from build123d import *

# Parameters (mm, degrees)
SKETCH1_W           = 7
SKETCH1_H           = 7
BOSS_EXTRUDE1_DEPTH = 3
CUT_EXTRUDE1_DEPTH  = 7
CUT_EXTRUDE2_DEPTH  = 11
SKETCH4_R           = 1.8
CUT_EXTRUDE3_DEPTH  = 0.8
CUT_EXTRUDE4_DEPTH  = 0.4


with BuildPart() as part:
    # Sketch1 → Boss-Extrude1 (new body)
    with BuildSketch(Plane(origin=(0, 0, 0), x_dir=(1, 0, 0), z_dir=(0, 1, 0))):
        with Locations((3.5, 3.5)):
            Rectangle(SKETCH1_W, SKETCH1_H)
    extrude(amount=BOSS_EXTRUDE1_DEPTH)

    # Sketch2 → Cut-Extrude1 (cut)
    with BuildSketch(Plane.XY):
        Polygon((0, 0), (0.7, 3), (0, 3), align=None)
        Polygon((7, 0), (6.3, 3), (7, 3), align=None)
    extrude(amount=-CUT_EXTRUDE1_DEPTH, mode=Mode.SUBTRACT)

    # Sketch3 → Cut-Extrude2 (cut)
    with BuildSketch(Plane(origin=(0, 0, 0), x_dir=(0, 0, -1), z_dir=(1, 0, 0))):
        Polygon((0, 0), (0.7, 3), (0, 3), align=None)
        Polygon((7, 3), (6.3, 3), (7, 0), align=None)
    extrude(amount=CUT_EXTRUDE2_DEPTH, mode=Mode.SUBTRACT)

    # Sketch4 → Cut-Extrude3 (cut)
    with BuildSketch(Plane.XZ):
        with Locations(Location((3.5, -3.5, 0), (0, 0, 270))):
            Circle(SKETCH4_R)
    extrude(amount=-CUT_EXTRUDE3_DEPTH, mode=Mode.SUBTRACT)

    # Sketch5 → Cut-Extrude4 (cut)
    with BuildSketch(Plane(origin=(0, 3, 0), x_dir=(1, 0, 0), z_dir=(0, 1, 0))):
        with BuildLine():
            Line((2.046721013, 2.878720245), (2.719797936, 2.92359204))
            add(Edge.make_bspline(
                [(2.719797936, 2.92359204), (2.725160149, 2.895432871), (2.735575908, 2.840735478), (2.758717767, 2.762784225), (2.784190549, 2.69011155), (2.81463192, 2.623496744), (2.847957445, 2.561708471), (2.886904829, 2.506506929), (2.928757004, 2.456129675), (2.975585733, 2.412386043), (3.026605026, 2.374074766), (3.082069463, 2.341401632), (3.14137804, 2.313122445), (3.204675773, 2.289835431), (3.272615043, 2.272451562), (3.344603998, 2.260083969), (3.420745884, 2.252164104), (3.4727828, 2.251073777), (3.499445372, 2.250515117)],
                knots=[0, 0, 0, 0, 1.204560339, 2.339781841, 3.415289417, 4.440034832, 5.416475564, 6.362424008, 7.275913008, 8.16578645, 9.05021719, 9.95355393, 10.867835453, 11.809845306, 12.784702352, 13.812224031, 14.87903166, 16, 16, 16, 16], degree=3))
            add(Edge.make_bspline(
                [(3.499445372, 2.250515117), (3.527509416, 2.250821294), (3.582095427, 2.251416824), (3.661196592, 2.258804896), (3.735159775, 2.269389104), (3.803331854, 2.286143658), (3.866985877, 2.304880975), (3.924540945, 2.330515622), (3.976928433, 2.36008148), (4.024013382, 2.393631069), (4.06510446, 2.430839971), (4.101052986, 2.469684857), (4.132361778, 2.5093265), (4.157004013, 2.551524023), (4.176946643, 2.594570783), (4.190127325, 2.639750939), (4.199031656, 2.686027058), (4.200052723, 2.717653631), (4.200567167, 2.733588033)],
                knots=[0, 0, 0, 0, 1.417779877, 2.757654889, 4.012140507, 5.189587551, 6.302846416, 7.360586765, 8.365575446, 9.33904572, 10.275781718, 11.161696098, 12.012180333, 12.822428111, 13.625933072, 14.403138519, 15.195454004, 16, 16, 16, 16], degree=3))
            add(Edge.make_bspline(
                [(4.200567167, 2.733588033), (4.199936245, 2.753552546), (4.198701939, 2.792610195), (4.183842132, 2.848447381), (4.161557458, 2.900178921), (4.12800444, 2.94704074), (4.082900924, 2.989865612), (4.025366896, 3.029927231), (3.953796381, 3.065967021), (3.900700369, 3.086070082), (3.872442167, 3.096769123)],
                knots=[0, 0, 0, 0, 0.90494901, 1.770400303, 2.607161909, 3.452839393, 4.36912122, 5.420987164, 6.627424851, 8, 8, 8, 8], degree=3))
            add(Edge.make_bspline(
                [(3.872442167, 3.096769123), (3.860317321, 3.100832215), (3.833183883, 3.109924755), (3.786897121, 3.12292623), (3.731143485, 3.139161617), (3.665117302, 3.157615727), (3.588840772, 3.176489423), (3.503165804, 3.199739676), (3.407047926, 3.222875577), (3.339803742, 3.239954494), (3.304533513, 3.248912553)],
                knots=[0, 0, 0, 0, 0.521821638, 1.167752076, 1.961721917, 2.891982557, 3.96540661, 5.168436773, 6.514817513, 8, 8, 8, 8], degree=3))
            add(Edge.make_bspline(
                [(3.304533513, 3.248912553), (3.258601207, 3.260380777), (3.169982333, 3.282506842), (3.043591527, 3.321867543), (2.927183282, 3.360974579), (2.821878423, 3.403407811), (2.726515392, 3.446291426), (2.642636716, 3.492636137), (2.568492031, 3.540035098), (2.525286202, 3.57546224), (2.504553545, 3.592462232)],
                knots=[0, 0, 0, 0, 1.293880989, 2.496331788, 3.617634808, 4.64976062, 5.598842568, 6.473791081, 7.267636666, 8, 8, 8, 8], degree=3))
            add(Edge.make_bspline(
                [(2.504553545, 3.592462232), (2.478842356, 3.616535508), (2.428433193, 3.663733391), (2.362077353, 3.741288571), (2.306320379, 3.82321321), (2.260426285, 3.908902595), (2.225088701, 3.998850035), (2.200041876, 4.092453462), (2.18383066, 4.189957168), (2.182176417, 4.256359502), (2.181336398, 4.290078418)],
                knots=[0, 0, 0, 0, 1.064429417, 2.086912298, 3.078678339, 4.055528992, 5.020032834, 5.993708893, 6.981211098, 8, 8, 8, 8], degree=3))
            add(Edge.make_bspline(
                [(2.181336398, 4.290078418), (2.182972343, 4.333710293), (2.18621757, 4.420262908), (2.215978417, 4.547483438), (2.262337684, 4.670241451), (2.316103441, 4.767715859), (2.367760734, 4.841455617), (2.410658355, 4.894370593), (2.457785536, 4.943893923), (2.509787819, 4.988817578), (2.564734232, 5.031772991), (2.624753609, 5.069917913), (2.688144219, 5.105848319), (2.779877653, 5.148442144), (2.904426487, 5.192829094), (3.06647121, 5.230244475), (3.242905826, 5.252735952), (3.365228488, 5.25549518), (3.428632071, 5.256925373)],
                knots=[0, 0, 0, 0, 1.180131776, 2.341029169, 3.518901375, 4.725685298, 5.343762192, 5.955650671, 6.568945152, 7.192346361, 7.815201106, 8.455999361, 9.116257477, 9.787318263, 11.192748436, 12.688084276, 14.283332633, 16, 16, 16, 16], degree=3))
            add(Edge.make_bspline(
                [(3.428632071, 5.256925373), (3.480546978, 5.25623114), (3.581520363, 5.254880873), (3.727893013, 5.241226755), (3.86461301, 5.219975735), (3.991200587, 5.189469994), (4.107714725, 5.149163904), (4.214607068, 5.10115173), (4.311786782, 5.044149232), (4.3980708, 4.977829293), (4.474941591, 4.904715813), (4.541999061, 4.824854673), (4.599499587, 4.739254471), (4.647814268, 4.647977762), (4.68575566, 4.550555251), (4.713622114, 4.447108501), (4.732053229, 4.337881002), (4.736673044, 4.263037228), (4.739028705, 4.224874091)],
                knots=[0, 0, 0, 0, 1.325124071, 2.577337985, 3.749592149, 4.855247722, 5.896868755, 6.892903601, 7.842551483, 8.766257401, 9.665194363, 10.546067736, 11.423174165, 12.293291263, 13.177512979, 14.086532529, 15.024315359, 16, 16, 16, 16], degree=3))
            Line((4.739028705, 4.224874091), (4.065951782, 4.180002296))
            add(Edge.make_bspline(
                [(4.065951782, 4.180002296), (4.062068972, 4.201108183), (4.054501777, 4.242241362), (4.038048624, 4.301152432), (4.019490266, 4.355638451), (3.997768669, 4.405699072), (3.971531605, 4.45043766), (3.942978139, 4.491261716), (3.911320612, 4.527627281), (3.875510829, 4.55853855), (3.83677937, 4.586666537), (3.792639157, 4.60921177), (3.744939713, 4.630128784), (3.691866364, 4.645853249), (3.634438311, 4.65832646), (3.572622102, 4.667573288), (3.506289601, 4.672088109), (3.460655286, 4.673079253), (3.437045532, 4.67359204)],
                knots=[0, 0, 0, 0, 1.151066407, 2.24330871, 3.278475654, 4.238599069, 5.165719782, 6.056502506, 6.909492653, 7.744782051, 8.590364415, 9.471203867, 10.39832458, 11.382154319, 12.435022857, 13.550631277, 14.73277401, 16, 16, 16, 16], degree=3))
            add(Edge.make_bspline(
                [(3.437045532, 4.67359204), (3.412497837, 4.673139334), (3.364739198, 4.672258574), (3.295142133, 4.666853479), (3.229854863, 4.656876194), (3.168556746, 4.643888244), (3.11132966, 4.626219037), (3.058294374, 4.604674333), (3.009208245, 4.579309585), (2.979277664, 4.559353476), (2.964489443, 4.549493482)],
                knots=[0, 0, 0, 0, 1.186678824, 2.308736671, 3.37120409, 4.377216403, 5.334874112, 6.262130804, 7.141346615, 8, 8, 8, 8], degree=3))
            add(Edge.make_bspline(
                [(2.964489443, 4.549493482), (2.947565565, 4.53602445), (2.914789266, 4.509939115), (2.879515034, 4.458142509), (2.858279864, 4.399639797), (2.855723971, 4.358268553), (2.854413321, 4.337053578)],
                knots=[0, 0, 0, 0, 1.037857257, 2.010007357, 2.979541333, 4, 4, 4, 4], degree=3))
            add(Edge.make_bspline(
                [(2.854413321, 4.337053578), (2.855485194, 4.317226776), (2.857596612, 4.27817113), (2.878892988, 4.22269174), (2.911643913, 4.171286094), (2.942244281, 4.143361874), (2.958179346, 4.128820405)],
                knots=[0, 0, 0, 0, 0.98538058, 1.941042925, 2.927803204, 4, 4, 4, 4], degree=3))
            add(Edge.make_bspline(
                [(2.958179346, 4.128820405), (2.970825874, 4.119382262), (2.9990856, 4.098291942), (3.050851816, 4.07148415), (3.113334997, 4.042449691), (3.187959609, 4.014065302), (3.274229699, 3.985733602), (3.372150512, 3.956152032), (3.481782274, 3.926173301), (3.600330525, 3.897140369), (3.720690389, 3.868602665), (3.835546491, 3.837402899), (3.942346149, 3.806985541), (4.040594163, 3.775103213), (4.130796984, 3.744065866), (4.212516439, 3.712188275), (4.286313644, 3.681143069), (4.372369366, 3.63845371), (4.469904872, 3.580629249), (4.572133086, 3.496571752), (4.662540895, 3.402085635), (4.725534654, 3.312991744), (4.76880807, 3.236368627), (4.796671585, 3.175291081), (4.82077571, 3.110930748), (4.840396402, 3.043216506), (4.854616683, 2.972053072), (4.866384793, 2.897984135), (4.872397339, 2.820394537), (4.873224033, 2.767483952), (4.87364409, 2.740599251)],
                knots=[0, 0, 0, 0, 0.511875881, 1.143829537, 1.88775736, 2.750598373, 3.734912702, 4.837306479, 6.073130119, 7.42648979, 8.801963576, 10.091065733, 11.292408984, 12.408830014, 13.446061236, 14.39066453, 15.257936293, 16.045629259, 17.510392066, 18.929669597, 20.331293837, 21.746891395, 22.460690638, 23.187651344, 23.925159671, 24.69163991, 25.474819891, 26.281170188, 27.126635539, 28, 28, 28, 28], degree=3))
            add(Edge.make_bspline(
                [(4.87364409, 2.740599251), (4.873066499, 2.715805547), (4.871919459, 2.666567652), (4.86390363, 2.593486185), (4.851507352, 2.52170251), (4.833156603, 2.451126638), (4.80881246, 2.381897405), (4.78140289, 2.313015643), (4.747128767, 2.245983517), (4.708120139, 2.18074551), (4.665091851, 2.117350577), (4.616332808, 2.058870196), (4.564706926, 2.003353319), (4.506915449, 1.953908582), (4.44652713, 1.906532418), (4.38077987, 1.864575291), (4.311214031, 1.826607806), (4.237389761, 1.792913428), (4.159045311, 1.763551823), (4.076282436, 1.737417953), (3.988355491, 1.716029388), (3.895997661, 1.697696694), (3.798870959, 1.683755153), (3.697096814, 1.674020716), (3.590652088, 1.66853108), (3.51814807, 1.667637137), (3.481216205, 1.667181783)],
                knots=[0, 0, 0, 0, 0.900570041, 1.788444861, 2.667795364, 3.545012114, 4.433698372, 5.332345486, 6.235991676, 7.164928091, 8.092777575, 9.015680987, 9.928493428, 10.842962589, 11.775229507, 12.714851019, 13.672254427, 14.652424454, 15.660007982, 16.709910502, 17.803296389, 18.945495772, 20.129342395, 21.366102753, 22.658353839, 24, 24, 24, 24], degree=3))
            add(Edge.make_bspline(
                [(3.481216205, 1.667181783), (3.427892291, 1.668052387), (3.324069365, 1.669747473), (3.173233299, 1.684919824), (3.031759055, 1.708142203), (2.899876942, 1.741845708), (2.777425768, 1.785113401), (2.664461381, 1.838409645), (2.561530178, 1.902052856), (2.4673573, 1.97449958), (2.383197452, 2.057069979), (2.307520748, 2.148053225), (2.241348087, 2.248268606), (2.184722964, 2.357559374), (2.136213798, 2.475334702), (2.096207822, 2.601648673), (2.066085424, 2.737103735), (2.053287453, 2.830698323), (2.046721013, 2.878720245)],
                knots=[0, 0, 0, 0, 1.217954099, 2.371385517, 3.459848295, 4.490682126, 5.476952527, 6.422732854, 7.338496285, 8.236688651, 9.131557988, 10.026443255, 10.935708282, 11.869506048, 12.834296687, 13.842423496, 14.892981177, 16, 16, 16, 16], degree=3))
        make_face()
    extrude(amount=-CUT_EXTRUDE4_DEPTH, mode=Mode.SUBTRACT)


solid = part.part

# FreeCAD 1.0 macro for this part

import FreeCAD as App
import Part
import Sketcher

V = App.Vector
Q = App.Units.Quantity


def add_polygon(sketch, points):
    """Adds a closed chain of lines whose ends are joined by coincident constraints."""
    first, n = sketch.GeometryCount, len(points)
    for a, b in zip(points, points[1:] + points[:1]):
        sketch.addGeometry(Part.LineSegment(App.Vector(*a, 0), App.Vector(*b, 0)), False)
    for i in range(n):
        sketch.addConstraint(Sketcher.Constraint("Coincident", first + i, 2, first + (i + 1) % n, 1))

doc = App.newDocument("Part")
body = doc.addObject("PartDesign::Body", "Body")

sketch1 = doc.addObject("Sketcher::SketchObject", "Sketch")
body.addObject(sketch1)
sketch1.AttachmentSupport = (doc.XZ_Plane, [""])
sketch1.MapMode = "FlatFace"
add_polygon(sketch1, [(0, -7), (0, 0), (7, 0), (7, -7)])
sketch1.addConstraint(Sketcher.Constraint("Vertical", 0))
sketch1.addConstraint(Sketcher.Constraint("Horizontal", 1))
sketch1.addConstraint(Sketcher.Constraint("Vertical", 2))
sketch1.addConstraint(Sketcher.Constraint("Horizontal", 3))
sketch1.addConstraint(Sketcher.Constraint("Coincident", 0, 2, -1, 1))
sketch1.addConstraint(Sketcher.Constraint("Equal", 3, 0))
sketch1.addConstraint(Sketcher.Constraint("DistanceX", 1, 1, 1, 2, Q("7 mm")))
pad1 = doc.addObject("PartDesign::Pad", "Pad")
body.addObject(pad1)
pad1.Profile = sketch1
pad1.Length = 3
pad1.Reversed = True

sketch2 = doc.addObject("Sketcher::SketchObject", "Sketch001")
body.addObject(sketch2)
sketch2.AttachmentSupport = (doc.XY_Plane, [""])
sketch2.MapMode = "FlatFace"
add_polygon(sketch2, [(0, 0), (0.7, 3), (0, 3)])
add_polygon(sketch2, [(6.3, 3), (7, 0), (7, 3)])
sketch2.addConstraint(Sketcher.Constraint("Horizontal", 1))
sketch2.addConstraint(Sketcher.Constraint("Vertical", 2))
sketch2.addConstraint(Sketcher.Constraint("Vertical", 4))
sketch2.addConstraint(Sketcher.Constraint("Horizontal", 5))
sketch2.addConstraint(Sketcher.Constraint("Coincident", 2, 2, -1, 1))
sketch2.addConstraint(Sketcher.Constraint("PointOnObject", 3, 2, -1))
sketch2.addConstraint(Sketcher.Constraint("Horizontal", 1, 2, 4, 2))
sketch2.addConstraint(Sketcher.Constraint("Equal", 1, 5))
sketch2.addConstraint(Sketcher.Constraint("DistanceY", 2, 2, 2, 1, Q("3 mm")))
sketch2.addConstraint(Sketcher.Constraint("DistanceX", 1, 2, 1, 1, Q("0.7 mm")))
sketch2.addConstraint(Sketcher.Constraint("DistanceX", -1, 1, 3, 2, Q("7 mm")))
pocket1 = doc.addObject("PartDesign::Pocket", "Pocket")
body.addObject(pocket1)
pocket1.Profile = sketch2
pocket1.Length = 7

sketch3 = doc.addObject("Sketcher::SketchObject", "Sketch002")
body.addObject(sketch3)
sketch3.AttachmentSupport = (doc.YZ_Plane, [""])
sketch3.MapMode = "FlatFace"
add_polygon(sketch3, [(0, 0), (3, -0.7), (3, 0)])
add_polygon(sketch3, [(3, -7), (3, -6.3), (0, -7)])
sketch3.addConstraint(Sketcher.Constraint("Vertical", 1))
sketch3.addConstraint(Sketcher.Constraint("Horizontal", 2))
sketch3.addConstraint(Sketcher.Constraint("Vertical", 3))
sketch3.addConstraint(Sketcher.Constraint("Horizontal", 5))
sketch3.addConstraint(Sketcher.Constraint("Coincident", 2, 2, -1, 1))
sketch3.addConstraint(Sketcher.Constraint("PointOnObject", 4, 2, -2))
sketch3.addConstraint(Sketcher.Constraint("Vertical", 1, 2, 3, 2))
sketch3.addConstraint(Sketcher.Constraint("Equal", 1, 3))
sketch3.addConstraint(Sketcher.Constraint("DistanceX", 2, 2, 2, 1, Q("3 mm")))
sketch3.addConstraint(Sketcher.Constraint("DistanceY", 1, 1, 1, 2, Q("0.7 mm")))
sketch3.addConstraint(Sketcher.Constraint("DistanceY", 4, 2, -1, 1, Q("7 mm")))
pocket2 = doc.addObject("PartDesign::Pocket", "Pocket001")
body.addObject(pocket2)
pocket2.Profile = sketch3
pocket2.Length = 11
pocket2.Reversed = True

sketch4 = doc.addObject("Sketcher::SketchObject", "Sketch003")
body.addObject(sketch4)
sketch4.AttachmentSupport = (doc.XZ_Plane, [""])
sketch4.MapMode = "FlatFace"
sketch4.addGeometry(Part.Circle(V(3.5, -3.5, 0), V(0, 0, 1), 1.8), False)
sketch4.addConstraint(Sketcher.Constraint("Diameter", 0, Q("3.6 mm")))
sketch4.addConstraint(Sketcher.Constraint("DistanceX", -1, 1, 0, 3, Q("3.5 mm")))
sketch4.addConstraint(Sketcher.Constraint("DistanceY", 0, 3, -1, 1, Q("3.5 mm")))
pocket3 = doc.addObject("PartDesign::Pocket", "Pocket002")
body.addObject(pocket3)
pocket3.Profile = sketch4
pocket3.Length = 0.8

sketch5 = doc.addObject("Sketcher::SketchObject", "Sketch004")
body.addObject(sketch5)
sketch5.AttachmentSupport = (doc.XZ_Plane, [""])
sketch5.MapMode = "FlatFace"
sketch5.AttachmentOffset = App.Placement(V(0, 0, -3), App.Rotation())
sketch5.addGeometry(Part.LineSegment(V(2.719798, -2.923592, 0), V(2.046721, -2.87872, 0)), False)
sketch5.addGeometry(Part.BSplineCurve([V(3.481216, -1.667182, 0), V(3.427892, -1.668052, 0), V(3.324069, -1.669747, 0), V(3.173233, -1.68492, 0), V(3.031759, -1.708142, 0), V(2.899877, -1.741846, 0), V(2.777426, -1.785113, 0), V(2.664461, -1.83841, 0), V(2.56153, -1.902053, 0), V(2.467357, -1.9745, 0), V(2.383197, -2.05707, 0), V(2.307521, -2.148053, 0), V(2.241348, -2.248269, 0), V(2.184723, -2.357559, 0), V(2.136214, -2.475335, 0), V(2.096208, -2.601649, 0), V(2.066085, -2.737104, 0), V(2.053287, -2.830698, 0), V(2.046721, -2.87872, 0)], [4, 1, 1, 1, 1, 1, 1, 1, 1, 1, 1, 1, 1, 1, 1, 1, 4], [0, 1.217954099, 2.371385517, 3.459848295, 4.490682126, 5.476952527, 6.422732854, 7.338496285, 8.236688651, 9.131557988, 10.026443255, 10.935708282, 11.869506048, 12.834296687, 13.842423496, 14.892981177, 16], False, 3, [1, 1, 1, 1, 1, 1, 1, 1, 1, 1, 1, 1, 1, 1, 1, 1, 1, 1, 1], False), False)
sketch5.addGeometry(Part.BSplineCurve([V(4.873644, -2.740599, 0), V(4.873066, -2.715806, 0), V(4.871919, -2.666568, 0), V(4.863904, -2.593486, 0), V(4.851507, -2.521703, 0), V(4.833157, -2.451127, 0), V(4.808812, -2.381897, 0), V(4.781403, -2.313016, 0), V(4.747129, -2.245984, 0), V(4.70812, -2.180746, 0), V(4.665092, -2.117351, 0), V(4.616333, -2.05887, 0), V(4.564707, -2.003353, 0), V(4.506915, -1.953909, 0), V(4.446527, -1.906532, 0), V(4.38078, -1.864575, 0), V(4.311214, -1.826608, 0), V(4.23739, -1.792913, 0), V(4.159045, -1.763552, 0), V(4.076282, -1.737418, 0), V(3.988355, -1.716029, 0), V(3.895998, -1.697697, 0), V(3.798871, -1.683755, 0), V(3.697097, -1.674021, 0), V(3.590652, -1.668531, 0), V(3.518148, -1.667637, 0), V(3.481216, -1.667182, 0)], [4, 1, 1, 1, 1, 1, 1, 1, 1, 1, 1, 1, 1, 1, 1, 1, 1, 1, 1, 1, 1, 1, 1, 1, 4], [0, 0.900570041, 1.788444861, 2.667795364, 3.545012114, 4.433698372, 5.332345486, 6.235991676, 7.164928091, 8.092777575, 9.015680987, 9.928493428, 10.842962589, 11.775229507, 12.714851019, 13.672254427, 14.652424454, 15.660007982, 16.709910502, 17.803296389, 18.945495772, 20.129342395, 21.366102753, 22.658353839, 24], False, 3, [1, 1, 1, 1, 1, 1, 1, 1, 1, 1, 1, 1, 1, 1, 1, 1, 1, 1, 1, 1, 1, 1, 1, 1, 1, 1, 1], False), False)
sketch5.addGeometry(Part.BSplineCurve([V(2.958179, -4.12882, 0), V(2.970826, -4.119382, 0), V(2.999086, -4.098292, 0), V(3.050852, -4.071484, 0), V(3.113335, -4.04245, 0), V(3.18796, -4.014065, 0), V(3.27423, -3.985734, 0), V(3.372151, -3.956152, 0), V(3.481782, -3.926173, 0), V(3.600331, -3.89714, 0), V(3.72069, -3.868603, 0), V(3.835546, -3.837403, 0), V(3.942346, -3.806986, 0), V(4.040594, -3.775103, 0), V(4.130797, -3.744066, 0), V(4.212516, -3.712188, 0), V(4.286314, -3.681143, 0), V(4.372369, -3.638454, 0), V(4.469905, -3.580629, 0), V(4.572133, -3.496572, 0), V(4.662541, -3.402086, 0), V(4.725535, -3.312992, 0), V(4.768808, -3.236369, 0), V(4.796672, -3.175291, 0), V(4.820776, -3.110931, 0), V(4.840396, -3.043217, 0), V(4.854617, -2.972053, 0), V(4.866385, -2.897984, 0), V(4.872397, -2.820395, 0), V(4.873224, -2.767484, 0), V(4.873644, -2.740599, 0)], [4, 1, 1, 1, 1, 1, 1, 1, 1, 1, 1, 1, 1, 1, 1, 1, 1, 1, 1, 1, 1, 1, 1, 1, 1, 1, 1, 1, 4], [0, 0.511875881, 1.143829537, 1.88775736, 2.750598373, 3.734912702, 4.837306479, 6.073130119, 7.42648979, 8.801963576, 10.091065733, 11.292408984, 12.408830014, 13.446061236, 14.39066453, 15.257936293, 16.045629259, 17.510392066, 18.929669597, 20.331293837, 21.746891395, 22.460690638, 23.187651344, 23.925159671, 24.69163991, 25.474819891, 26.281170188, 27.126635539, 28], False, 3, [1, 1, 1, 1, 1, 1, 1, 1, 1, 1, 1, 1, 1, 1, 1, 1, 1, 1, 1, 1, 1, 1, 1, 1, 1, 1, 1, 1, 1, 1, 1], False), False)
sketch5.addGeometry(Part.BSplineCurve([V(2.854413, -4.337054, 0), V(2.855485, -4.317227, 0), V(2.857597, -4.278171, 0), V(2.878893, -4.222692, 0), V(2.911644, -4.171286, 0), V(2.942244, -4.143362, 0), V(2.958179, -4.12882, 0)], [4, 1, 1, 1, 4], [0, 0.98538058, 1.941042925, 2.927803204, 4], False, 3, [1, 1, 1, 1, 1, 1, 1], False), False)
sketch5.addGeometry(Part.BSplineCurve([V(2.964489, -4.549493, 0), V(2.947566, -4.536024, 0), V(2.914789, -4.509939, 0), V(2.879515, -4.458143, 0), V(2.85828, -4.39964, 0), V(2.855724, -4.358269, 0), V(2.854413, -4.337054, 0)], [4, 1, 1, 1, 4], [0, 1.037857257, 2.010007357, 2.979541333, 4], False, 3, [1, 1, 1, 1, 1, 1, 1], False), False)
sketch5.addGeometry(Part.BSplineCurve([V(3.437046, -4.673592, 0), V(3.412498, -4.673139, 0), V(3.364739, -4.672259, 0), V(3.295142, -4.666853, 0), V(3.229855, -4.656876, 0), V(3.168557, -4.643888, 0), V(3.11133, -4.626219, 0), V(3.058294, -4.604674, 0), V(3.009208, -4.57931, 0), V(2.979278, -4.559353, 0), V(2.964489, -4.549493, 0)], [4, 1, 1, 1, 1, 1, 1, 1, 4], [0, 1.186678824, 2.308736671, 3.37120409, 4.377216403, 5.334874112, 6.262130804, 7.141346615, 8], False, 3, [1, 1, 1, 1, 1, 1, 1, 1, 1, 1, 1], False), False)
sketch5.addGeometry(Part.BSplineCurve([V(4.065952, -4.180002, 0), V(4.062069, -4.201108, 0), V(4.054502, -4.242241, 0), V(4.038049, -4.301152, 0), V(4.01949, -4.355638, 0), V(3.997769, -4.405699, 0), V(3.971532, -4.450438, 0), V(3.942978, -4.491262, 0), V(3.911321, -4.527627, 0), V(3.875511, -4.558539, 0), V(3.836779, -4.586667, 0), V(3.792639, -4.609212, 0), V(3.74494, -4.630129, 0), V(3.691866, -4.645853, 0), V(3.634438, -4.658326, 0), V(3.572622, -4.667573, 0), V(3.50629, -4.672088, 0), V(3.460655, -4.673079, 0), V(3.437046, -4.673592, 0)], [4, 1, 1, 1, 1, 1, 1, 1, 1, 1, 1, 1, 1, 1, 1, 1, 4], [0, 1.151066407, 2.24330871, 3.278475654, 4.238599069, 5.165719782, 6.056502506, 6.909492653, 7.744782051, 8.590364415, 9.471203867, 10.39832458, 11.382154319, 12.435022857, 13.550631277, 14.73277401, 16], False, 3, [1, 1, 1, 1, 1, 1, 1, 1, 1, 1, 1, 1, 1, 1, 1, 1, 1, 1, 1], False), False)
sketch5.addGeometry(Part.LineSegment(V(4.065952, -4.180002, 0), V(4.739029, -4.224874, 0)), False)
sketch5.addGeometry(Part.BSplineCurve([V(3.428632, -5.256925, 0), V(3.480547, -5.256231, 0), V(3.58152, -5.254881, 0), V(3.727893, -5.241227, 0), V(3.864613, -5.219976, 0), V(3.991201, -5.18947, 0), V(4.107715, -5.149164, 0), V(4.214607, -5.101152, 0), V(4.311787, -5.044149, 0), V(4.398071, -4.977829, 0), V(4.474942, -4.904716, 0), V(4.541999, -4.824855, 0), V(4.5995, -4.739254, 0), V(4.647814, -4.647978, 0), V(4.685756, -4.550555, 0), V(4.713622, -4.447109, 0), V(4.732053, -4.337881, 0), V(4.736673, -4.263037, 0), V(4.739029, -4.224874, 0)], [4, 1, 1, 1, 1, 1, 1, 1, 1, 1, 1, 1, 1, 1, 1, 1, 4], [0, 1.325124071, 2.577337985, 3.749592149, 4.855247722, 5.896868755, 6.892903601, 7.842551483, 8.766257401, 9.665194363, 10.546067736, 11.423174165, 12.293291263, 13.177512979, 14.086532529, 15.024315359, 16], False, 3, [1, 1, 1, 1, 1, 1, 1, 1, 1, 1, 1, 1, 1, 1, 1, 1, 1, 1, 1], False), False)
sketch5.addGeometry(Part.BSplineCurve([V(2.181336, -4.290078, 0), V(2.182972, -4.33371, 0), V(2.186218, -4.420263, 0), V(2.215978, -4.547483, 0), V(2.262338, -4.670241, 0), V(2.316103, -4.767716, 0), V(2.367761, -4.841456, 0), V(2.410658, -4.894371, 0), V(2.457786, -4.943894, 0), V(2.509788, -4.988818, 0), V(2.564734, -5.031773, 0), V(2.624754, -5.069918, 0), V(2.688144, -5.105848, 0), V(2.779878, -5.148442, 0), V(2.904426, -5.192829, 0), V(3.066471, -5.230244, 0), V(3.242906, -5.252736, 0), V(3.365228, -5.255495, 0), V(3.428632, -5.256925, 0)], [4, 1, 1, 1, 1, 1, 1, 1, 1, 1, 1, 1, 1, 1, 1, 1, 4], [0, 1.180131776, 2.341029169, 3.518901375, 4.725685298, 5.343762192, 5.955650671, 6.568945152, 7.192346361, 7.815201106, 8.455999361, 9.116257477, 9.787318263, 11.192748436, 12.688084276, 14.283332633, 16], False, 3, [1, 1, 1, 1, 1, 1, 1, 1, 1, 1, 1, 1, 1, 1, 1, 1, 1, 1, 1], False), False)
sketch5.addGeometry(Part.BSplineCurve([V(2.504554, -3.592462, 0), V(2.478842, -3.616536, 0), V(2.428433, -3.663733, 0), V(2.362077, -3.741289, 0), V(2.30632, -3.823213, 0), V(2.260426, -3.908903, 0), V(2.225089, -3.99885, 0), V(2.200042, -4.092453, 0), V(2.183831, -4.189957, 0), V(2.182176, -4.25636, 0), V(2.181336, -4.290078, 0)], [4, 1, 1, 1, 1, 1, 1, 1, 4], [0, 1.064429417, 2.086912298, 3.078678339, 4.055528992, 5.020032834, 5.993708893, 6.981211098, 8], False, 3, [1, 1, 1, 1, 1, 1, 1, 1, 1, 1, 1], False), False)
sketch5.addGeometry(Part.BSplineCurve([V(3.304534, -3.248913, 0), V(3.258601, -3.260381, 0), V(3.169982, -3.282507, 0), V(3.043592, -3.321868, 0), V(2.927183, -3.360975, 0), V(2.821878, -3.403408, 0), V(2.726515, -3.446291, 0), V(2.642637, -3.492636, 0), V(2.568492, -3.540035, 0), V(2.525286, -3.575462, 0), V(2.504554, -3.592462, 0)], [4, 1, 1, 1, 1, 1, 1, 1, 4], [0, 1.293880989, 2.496331788, 3.617634808, 4.64976062, 5.598842568, 6.473791081, 7.267636666, 8], False, 3, [1, 1, 1, 1, 1, 1, 1, 1, 1, 1, 1], False), False)
sketch5.addGeometry(Part.BSplineCurve([V(3.872442, -3.096769, 0), V(3.860317, -3.100832, 0), V(3.833184, -3.109925, 0), V(3.786897, -3.122926, 0), V(3.731143, -3.139162, 0), V(3.665117, -3.157616, 0), V(3.588841, -3.176489, 0), V(3.503166, -3.19974, 0), V(3.407048, -3.222876, 0), V(3.339804, -3.239954, 0), V(3.304534, -3.248913, 0)], [4, 1, 1, 1, 1, 1, 1, 1, 4], [0, 0.521821638, 1.167752076, 1.961721917, 2.891982557, 3.96540661, 5.168436773, 6.514817513, 8], False, 3, [1, 1, 1, 1, 1, 1, 1, 1, 1, 1, 1], False), False)
sketch5.addGeometry(Part.BSplineCurve([V(4.200567, -2.733588, 0), V(4.199936, -2.753553, 0), V(4.198702, -2.79261, 0), V(4.183842, -2.848447, 0), V(4.161557, -2.900179, 0), V(4.128004, -2.947041, 0), V(4.082901, -2.989866, 0), V(4.025367, -3.029927, 0), V(3.953796, -3.065967, 0), V(3.9007, -3.08607, 0), V(3.872442, -3.096769, 0)], [4, 1, 1, 1, 1, 1, 1, 1, 4], [0, 0.90494901, 1.770400303, 2.607161909, 3.452839393, 4.36912122, 5.420987164, 6.627424851, 8], False, 3, [1, 1, 1, 1, 1, 1, 1, 1, 1, 1, 1], False), False)
sketch5.addGeometry(Part.BSplineCurve([V(3.499445, -2.250515, 0), V(3.527509, -2.250821, 0), V(3.582095, -2.251417, 0), V(3.661197, -2.258805, 0), V(3.73516, -2.269389, 0), V(3.803332, -2.286144, 0), V(3.866986, -2.304881, 0), V(3.924541, -2.330516, 0), V(3.976928, -2.360081, 0), V(4.024013, -2.393631, 0), V(4.065104, -2.43084, 0), V(4.101053, -2.469685, 0), V(4.132362, -2.509326, 0), V(4.157004, -2.551524, 0), V(4.176947, -2.594571, 0), V(4.190127, -2.639751, 0), V(4.199032, -2.686027, 0), V(4.200053, -2.717654, 0), V(4.200567, -2.733588, 0)], [4, 1, 1, 1, 1, 1, 1, 1, 1, 1, 1, 1, 1, 1, 1, 1, 4], [0, 1.417779877, 2.757654889, 4.012140507, 5.189587551, 6.302846416, 7.360586765, 8.365575446, 9.33904572, 10.275781718, 11.161696098, 12.012180333, 12.822428111, 13.625933072, 14.403138519, 15.195454004, 16], False, 3, [1, 1, 1, 1, 1, 1, 1, 1, 1, 1, 1, 1, 1, 1, 1, 1, 1, 1, 1], False), False)
sketch5.addGeometry(Part.BSplineCurve([V(2.719798, -2.923592, 0), V(2.72516, -2.895433, 0), V(2.735576, -2.840735, 0), V(2.758718, -2.762784, 0), V(2.784191, -2.690112, 0), V(2.814632, -2.623497, 0), V(2.847957, -2.561708, 0), V(2.886905, -2.506507, 0), V(2.928757, -2.45613, 0), V(2.975586, -2.412386, 0), V(3.026605, -2.374075, 0), V(3.082069, -2.341402, 0), V(3.141378, -2.313122, 0), V(3.204676, -2.289835, 0), V(3.272615, -2.272452, 0), V(3.344604, -2.260084, 0), V(3.420746, -2.252164, 0), V(3.472783, -2.251074, 0), V(3.499445, -2.250515, 0)], [4, 1, 1, 1, 1, 1, 1, 1, 1, 1, 1, 1, 1, 1, 1, 1, 4], [0, 1.204560339, 2.339781841, 3.415289417, 4.440034832, 5.416475564, 6.362424008, 7.275913008, 8.16578645, 9.05021719, 9.95355393, 10.867835453, 11.809845306, 12.784702352, 13.812224031, 14.87903166, 16], False, 3, [1, 1, 1, 1, 1, 1, 1, 1, 1, 1, 1, 1, 1, 1, 1, 1, 1, 1, 1], False), False)
sketch5.addConstraint(Sketcher.Constraint("Block", 1))
sketch5.addConstraint(Sketcher.Constraint("Block", 2))
sketch5.addConstraint(Sketcher.Constraint("Block", 3))
sketch5.addConstraint(Sketcher.Constraint("Block", 4))
sketch5.addConstraint(Sketcher.Constraint("Block", 5))
sketch5.addConstraint(Sketcher.Constraint("Block", 6))
sketch5.addConstraint(Sketcher.Constraint("Block", 7))
sketch5.addConstraint(Sketcher.Constraint("Block", 9))
sketch5.addConstraint(Sketcher.Constraint("Block", 10))
sketch5.addConstraint(Sketcher.Constraint("Block", 11))
sketch5.addConstraint(Sketcher.Constraint("Block", 12))
sketch5.addConstraint(Sketcher.Constraint("Block", 13))
sketch5.addConstraint(Sketcher.Constraint("Block", 14))
sketch5.addConstraint(Sketcher.Constraint("Block", 15))
sketch5.addConstraint(Sketcher.Constraint("Block", 16))
sketch5.addConstraint(Sketcher.Constraint("Coincident", 0, 2, 1, 2))
sketch5.addConstraint(Sketcher.Constraint("Coincident", 7, 1, 8, 1))
sketch5.addConstraint(Sketcher.Constraint("Coincident", 8, 2, 9, 2))
sketch5.addConstraint(Sketcher.Constraint("Coincident", 16, 1, 0, 1))
pocket4 = doc.addObject("PartDesign::Pocket", "Pocket003")
body.addObject(pocket4)
pocket4.Profile = sketch5
pocket4.Length = 0.4
pocket4.Reversed = True

doc.recompute()
